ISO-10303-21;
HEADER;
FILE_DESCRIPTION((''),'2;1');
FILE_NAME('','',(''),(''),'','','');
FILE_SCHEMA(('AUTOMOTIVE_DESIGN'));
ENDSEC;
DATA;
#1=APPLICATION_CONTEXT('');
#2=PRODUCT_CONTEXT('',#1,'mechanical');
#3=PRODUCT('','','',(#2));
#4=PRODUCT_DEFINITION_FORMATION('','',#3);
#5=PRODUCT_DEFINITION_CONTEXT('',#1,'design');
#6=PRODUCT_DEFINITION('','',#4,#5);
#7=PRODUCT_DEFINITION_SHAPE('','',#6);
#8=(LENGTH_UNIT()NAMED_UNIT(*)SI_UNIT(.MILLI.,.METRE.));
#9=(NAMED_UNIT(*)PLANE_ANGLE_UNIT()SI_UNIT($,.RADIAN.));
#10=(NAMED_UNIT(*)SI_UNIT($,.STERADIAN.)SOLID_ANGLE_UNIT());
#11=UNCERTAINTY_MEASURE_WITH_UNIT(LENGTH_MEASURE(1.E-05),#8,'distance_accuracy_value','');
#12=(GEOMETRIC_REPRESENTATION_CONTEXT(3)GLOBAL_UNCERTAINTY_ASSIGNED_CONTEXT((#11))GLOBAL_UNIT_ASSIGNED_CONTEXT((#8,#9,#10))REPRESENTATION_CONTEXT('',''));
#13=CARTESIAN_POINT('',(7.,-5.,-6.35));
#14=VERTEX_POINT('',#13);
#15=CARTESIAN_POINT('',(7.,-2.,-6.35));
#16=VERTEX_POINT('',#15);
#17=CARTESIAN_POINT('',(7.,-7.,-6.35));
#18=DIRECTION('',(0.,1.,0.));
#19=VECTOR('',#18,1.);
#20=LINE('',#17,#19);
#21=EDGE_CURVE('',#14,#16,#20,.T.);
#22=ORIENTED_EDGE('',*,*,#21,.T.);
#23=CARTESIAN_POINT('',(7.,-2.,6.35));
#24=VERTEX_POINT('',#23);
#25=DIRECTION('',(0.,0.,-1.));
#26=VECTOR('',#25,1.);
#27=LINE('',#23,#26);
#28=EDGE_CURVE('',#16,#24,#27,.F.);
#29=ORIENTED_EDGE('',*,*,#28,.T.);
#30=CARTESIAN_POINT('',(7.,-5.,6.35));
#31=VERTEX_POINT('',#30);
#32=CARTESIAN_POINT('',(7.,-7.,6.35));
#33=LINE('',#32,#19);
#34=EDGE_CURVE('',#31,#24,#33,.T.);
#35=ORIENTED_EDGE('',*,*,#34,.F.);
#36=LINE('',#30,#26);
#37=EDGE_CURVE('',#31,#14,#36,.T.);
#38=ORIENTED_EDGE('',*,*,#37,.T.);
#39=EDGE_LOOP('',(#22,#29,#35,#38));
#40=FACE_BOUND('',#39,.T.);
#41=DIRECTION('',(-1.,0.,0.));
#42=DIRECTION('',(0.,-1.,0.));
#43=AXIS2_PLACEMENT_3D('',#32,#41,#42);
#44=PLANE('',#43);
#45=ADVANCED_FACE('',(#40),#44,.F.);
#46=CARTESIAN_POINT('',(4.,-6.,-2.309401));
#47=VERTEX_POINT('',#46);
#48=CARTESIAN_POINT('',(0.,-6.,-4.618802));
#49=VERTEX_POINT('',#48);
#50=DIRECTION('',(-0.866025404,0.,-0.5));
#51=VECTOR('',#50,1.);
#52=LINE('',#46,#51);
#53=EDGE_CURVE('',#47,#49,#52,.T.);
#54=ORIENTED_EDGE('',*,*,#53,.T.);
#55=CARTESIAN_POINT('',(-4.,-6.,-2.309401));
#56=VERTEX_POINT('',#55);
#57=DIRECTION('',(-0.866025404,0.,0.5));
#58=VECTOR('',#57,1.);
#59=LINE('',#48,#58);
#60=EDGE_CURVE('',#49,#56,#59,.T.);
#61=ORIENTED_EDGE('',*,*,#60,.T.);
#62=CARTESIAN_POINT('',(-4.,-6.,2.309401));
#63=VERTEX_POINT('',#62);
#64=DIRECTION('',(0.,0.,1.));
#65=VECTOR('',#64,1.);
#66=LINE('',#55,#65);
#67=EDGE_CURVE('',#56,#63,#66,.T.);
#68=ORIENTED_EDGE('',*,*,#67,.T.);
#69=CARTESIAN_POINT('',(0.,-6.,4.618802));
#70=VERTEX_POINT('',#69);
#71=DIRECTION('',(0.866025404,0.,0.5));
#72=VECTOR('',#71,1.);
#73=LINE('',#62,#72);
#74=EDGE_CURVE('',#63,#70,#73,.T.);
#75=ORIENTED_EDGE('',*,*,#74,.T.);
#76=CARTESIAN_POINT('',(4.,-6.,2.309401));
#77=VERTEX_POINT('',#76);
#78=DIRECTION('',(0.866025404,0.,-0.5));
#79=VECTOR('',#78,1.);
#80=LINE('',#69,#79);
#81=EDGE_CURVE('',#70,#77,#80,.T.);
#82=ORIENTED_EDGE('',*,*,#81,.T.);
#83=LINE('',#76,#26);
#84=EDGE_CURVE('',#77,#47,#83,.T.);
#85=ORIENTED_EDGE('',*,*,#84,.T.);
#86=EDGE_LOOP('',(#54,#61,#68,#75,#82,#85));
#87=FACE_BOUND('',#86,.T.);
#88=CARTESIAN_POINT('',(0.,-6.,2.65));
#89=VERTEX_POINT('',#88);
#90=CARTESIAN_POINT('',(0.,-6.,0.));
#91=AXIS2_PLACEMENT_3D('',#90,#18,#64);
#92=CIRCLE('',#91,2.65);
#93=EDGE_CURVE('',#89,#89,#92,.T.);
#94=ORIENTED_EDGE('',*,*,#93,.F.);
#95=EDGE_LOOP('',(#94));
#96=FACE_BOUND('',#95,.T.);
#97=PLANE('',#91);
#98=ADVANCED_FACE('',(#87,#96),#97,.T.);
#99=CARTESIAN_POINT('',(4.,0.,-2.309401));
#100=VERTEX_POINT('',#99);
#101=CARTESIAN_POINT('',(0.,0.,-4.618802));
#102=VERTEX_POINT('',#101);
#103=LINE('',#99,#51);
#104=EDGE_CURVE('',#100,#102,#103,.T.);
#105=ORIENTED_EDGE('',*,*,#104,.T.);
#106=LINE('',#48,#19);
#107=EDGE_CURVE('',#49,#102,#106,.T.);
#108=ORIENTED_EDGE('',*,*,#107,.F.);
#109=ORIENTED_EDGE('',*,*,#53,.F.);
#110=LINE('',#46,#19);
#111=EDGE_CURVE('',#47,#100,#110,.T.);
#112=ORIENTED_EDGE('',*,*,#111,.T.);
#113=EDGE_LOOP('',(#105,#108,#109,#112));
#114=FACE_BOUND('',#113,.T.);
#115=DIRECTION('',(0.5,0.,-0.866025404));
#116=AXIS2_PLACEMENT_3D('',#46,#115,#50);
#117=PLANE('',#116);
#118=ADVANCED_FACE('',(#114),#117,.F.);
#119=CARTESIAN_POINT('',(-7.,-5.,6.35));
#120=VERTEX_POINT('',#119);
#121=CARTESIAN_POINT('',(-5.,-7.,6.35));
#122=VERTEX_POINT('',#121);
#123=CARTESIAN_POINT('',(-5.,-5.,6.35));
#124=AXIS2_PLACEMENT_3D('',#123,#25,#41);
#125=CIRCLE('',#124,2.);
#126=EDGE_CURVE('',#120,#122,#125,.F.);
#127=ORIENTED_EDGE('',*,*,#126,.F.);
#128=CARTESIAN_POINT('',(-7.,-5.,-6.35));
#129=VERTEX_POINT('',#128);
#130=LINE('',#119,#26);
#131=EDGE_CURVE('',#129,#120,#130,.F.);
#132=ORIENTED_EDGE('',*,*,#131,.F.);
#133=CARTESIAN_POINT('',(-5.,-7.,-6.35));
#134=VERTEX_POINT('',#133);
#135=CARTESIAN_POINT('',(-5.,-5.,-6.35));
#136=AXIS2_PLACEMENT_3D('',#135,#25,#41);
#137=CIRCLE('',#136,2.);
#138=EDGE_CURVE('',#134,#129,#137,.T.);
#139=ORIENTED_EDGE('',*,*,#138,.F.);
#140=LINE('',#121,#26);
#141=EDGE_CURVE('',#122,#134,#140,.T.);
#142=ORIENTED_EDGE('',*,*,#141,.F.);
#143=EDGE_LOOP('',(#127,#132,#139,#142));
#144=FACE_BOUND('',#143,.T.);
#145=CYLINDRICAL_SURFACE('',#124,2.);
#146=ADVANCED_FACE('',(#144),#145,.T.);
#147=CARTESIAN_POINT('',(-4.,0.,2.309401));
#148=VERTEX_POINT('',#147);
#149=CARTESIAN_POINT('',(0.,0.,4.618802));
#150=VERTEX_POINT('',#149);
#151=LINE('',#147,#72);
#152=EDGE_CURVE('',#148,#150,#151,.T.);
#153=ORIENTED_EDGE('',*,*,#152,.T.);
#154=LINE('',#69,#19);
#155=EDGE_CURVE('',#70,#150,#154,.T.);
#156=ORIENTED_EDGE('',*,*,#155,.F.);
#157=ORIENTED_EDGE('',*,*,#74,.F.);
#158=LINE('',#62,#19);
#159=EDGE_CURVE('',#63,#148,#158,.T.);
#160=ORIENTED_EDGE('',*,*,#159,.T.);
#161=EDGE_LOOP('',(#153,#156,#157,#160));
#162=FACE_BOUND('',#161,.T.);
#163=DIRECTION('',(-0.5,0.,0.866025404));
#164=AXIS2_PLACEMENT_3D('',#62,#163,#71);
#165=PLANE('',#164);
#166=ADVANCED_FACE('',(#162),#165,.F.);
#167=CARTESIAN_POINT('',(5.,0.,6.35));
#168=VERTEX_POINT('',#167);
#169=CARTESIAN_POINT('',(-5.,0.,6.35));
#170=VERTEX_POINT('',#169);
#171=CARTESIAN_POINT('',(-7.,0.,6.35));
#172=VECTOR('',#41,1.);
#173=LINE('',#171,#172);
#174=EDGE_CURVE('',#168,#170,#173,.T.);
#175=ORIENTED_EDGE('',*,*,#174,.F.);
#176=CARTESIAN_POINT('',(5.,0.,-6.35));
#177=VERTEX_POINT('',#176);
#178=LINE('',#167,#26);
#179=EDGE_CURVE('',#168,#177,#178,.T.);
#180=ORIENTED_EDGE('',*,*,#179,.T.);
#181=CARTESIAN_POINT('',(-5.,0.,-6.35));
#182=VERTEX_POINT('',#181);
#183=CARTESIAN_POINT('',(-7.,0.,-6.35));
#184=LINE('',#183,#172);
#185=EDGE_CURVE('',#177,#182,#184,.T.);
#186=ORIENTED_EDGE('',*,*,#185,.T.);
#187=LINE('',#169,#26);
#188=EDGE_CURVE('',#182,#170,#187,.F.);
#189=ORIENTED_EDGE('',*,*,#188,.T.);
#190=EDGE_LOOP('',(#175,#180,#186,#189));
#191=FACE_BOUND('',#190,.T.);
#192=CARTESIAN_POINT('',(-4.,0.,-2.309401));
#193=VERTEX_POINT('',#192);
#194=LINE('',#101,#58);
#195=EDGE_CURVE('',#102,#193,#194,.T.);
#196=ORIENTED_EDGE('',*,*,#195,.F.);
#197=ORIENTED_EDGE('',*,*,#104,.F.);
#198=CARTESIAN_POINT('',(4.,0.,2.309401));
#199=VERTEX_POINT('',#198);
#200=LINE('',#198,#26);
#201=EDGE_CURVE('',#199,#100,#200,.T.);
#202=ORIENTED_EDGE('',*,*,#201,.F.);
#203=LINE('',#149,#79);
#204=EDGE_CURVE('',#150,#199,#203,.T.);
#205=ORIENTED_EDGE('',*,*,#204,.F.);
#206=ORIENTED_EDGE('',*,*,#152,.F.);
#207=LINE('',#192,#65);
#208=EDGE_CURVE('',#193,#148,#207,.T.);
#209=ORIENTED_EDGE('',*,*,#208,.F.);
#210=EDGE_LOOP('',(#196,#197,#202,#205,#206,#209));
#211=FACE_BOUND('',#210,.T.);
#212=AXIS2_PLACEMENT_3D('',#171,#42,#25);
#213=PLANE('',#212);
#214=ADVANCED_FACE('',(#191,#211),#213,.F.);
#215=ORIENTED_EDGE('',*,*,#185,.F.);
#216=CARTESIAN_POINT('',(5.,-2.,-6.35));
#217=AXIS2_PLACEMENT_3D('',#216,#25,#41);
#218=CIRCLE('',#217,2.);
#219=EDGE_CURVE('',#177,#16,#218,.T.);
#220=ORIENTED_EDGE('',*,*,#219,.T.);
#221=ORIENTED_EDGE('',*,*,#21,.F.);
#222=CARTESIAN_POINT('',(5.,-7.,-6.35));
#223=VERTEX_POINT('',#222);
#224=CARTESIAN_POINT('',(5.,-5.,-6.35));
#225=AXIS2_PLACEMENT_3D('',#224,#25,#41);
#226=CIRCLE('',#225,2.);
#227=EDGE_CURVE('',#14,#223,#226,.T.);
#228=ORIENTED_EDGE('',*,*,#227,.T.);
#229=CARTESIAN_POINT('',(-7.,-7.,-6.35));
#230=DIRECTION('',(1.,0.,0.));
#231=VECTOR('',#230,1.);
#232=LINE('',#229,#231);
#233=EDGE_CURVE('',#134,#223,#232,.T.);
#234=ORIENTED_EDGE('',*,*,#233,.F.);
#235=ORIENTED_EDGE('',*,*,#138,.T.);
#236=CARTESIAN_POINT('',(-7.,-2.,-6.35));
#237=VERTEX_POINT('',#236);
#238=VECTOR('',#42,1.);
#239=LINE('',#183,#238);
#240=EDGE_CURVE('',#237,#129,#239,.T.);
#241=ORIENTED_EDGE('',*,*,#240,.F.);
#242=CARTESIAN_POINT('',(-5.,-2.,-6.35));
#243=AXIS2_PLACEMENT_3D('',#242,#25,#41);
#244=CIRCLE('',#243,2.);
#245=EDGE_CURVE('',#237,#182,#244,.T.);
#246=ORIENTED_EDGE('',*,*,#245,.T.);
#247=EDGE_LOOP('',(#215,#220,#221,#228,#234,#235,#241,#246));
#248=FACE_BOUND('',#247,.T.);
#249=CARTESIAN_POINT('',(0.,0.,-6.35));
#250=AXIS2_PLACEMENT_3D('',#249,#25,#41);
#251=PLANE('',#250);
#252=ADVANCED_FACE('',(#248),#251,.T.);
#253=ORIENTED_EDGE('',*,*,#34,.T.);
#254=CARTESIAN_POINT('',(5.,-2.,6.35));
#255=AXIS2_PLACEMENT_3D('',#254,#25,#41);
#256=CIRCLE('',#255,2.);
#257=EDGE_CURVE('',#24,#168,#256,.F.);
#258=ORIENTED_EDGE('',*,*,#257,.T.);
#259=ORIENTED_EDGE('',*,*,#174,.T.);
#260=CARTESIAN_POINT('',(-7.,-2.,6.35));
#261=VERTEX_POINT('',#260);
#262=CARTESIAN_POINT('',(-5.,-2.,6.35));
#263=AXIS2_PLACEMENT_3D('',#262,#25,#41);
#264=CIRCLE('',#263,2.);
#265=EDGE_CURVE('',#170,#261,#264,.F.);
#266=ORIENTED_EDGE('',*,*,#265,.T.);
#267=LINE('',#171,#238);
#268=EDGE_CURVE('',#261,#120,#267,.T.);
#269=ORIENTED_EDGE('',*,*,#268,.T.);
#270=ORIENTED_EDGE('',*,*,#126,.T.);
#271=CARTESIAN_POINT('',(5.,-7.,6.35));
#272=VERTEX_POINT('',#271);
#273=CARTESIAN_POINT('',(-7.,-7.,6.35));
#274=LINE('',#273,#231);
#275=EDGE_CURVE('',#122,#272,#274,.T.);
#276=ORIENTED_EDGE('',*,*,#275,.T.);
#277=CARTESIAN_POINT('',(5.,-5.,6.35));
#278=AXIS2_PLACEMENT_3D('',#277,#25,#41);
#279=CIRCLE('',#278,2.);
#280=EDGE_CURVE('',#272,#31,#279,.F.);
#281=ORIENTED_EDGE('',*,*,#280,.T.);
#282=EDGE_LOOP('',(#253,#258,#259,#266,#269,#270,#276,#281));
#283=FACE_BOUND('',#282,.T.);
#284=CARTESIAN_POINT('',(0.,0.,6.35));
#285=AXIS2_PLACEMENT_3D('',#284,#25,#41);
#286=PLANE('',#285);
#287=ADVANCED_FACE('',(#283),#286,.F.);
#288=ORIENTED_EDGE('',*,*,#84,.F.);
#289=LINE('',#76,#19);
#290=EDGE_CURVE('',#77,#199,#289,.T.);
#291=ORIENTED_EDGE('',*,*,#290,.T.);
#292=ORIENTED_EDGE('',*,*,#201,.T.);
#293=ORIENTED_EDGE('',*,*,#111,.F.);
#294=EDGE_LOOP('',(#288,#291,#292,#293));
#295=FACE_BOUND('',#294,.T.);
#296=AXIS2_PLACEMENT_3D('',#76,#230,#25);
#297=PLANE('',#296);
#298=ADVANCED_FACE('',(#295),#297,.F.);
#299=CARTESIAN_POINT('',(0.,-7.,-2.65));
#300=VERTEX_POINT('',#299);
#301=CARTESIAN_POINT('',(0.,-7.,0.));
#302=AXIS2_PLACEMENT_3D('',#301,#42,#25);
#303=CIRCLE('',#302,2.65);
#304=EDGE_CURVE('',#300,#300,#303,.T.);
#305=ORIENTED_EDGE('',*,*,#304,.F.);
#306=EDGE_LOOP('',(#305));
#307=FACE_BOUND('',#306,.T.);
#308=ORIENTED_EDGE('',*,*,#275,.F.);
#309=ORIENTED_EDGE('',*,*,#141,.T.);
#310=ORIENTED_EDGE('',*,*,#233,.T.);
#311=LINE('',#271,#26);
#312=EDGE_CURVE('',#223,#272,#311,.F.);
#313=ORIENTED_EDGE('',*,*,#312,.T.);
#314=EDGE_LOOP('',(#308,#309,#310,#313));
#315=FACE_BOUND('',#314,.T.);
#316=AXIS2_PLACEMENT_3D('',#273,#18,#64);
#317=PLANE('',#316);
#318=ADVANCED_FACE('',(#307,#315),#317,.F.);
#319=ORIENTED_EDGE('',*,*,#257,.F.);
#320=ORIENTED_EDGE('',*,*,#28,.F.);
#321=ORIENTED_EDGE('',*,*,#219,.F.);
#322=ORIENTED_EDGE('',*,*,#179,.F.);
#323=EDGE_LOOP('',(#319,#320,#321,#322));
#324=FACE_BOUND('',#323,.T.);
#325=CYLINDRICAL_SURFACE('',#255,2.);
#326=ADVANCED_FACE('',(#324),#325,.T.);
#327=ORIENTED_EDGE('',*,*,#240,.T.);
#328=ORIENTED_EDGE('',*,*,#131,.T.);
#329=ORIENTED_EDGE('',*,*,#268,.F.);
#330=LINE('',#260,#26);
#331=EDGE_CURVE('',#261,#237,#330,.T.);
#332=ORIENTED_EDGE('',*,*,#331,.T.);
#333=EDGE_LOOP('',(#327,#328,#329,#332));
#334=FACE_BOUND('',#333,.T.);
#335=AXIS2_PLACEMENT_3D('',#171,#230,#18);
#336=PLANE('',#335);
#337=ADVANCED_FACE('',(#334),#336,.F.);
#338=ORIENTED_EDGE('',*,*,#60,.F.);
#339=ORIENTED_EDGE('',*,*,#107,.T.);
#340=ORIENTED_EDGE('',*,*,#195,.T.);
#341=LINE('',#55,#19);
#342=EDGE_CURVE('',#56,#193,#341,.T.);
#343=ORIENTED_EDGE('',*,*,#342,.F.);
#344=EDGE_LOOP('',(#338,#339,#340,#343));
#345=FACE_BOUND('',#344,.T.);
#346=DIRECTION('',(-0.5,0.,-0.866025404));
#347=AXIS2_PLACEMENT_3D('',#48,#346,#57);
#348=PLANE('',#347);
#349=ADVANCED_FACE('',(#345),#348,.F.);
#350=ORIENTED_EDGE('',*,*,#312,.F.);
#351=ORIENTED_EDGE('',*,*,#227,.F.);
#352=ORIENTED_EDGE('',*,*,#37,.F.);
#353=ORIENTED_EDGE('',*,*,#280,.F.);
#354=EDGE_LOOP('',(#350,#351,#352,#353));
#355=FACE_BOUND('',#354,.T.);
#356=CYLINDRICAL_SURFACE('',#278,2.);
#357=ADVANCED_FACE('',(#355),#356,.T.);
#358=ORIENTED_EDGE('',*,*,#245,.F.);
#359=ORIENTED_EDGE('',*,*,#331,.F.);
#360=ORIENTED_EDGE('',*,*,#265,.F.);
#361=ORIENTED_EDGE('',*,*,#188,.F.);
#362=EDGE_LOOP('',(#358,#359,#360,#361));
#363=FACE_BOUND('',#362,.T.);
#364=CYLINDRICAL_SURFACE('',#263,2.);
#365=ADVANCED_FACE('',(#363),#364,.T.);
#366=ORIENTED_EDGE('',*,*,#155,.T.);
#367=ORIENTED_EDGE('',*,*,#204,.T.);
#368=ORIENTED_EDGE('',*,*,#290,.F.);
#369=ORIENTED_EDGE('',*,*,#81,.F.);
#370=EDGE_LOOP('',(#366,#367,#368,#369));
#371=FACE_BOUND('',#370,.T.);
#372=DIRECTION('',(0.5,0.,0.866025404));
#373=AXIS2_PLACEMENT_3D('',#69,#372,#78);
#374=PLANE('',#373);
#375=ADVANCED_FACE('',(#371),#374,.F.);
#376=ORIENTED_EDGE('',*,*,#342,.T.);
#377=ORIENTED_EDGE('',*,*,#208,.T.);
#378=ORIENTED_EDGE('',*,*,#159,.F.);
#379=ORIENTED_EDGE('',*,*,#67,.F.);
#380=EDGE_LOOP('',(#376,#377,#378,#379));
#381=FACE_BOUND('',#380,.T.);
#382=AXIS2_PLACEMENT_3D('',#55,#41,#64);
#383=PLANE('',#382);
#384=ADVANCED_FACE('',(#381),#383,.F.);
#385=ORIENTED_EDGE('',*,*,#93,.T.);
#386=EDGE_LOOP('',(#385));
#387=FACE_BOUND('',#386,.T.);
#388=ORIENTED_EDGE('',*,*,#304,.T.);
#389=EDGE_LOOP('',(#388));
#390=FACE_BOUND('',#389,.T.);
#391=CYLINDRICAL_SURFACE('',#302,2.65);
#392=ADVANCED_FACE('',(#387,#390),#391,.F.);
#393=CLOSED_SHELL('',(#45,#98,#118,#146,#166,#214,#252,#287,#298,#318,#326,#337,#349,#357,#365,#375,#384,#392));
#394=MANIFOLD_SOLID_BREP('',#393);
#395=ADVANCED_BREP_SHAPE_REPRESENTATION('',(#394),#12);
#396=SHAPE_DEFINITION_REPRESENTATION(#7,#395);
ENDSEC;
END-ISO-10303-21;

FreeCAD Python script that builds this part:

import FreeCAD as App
import Part
import Sketcher

V = App.Vector
Q = App.Units.Quantity


def edges_at(feature, points):
    """Names of the edges that pass closest to the given points."""
    edges = feature.Shape.Edges
    near = lambda p: min(range(len(edges)), key=lambda i: edges[i].distToShape(Part.Vertex(*p))[0])
    return sorted({f"Edge{near(p) + 1}" for p in points})


def add_polygon(sketch, points):
    """Adds a closed chain of lines whose ends are joined by coincident constraints."""
    first, n = sketch.GeometryCount, len(points)
    for a, b in zip(points, points[1:] + points[:1]):
        sketch.addGeometry(Part.LineSegment(App.Vector(*a, 0), App.Vector(*b, 0)), False)
    for i in range(n):
        sketch.addConstraint(Sketcher.Constraint("Coincident", first + i, 2, first + (i + 1) % n, 1))

doc = App.newDocument("Part")
body = doc.addObject("PartDesign::Body", "Body")

# Sketch on XY plane
sketch1 = body.newObject("Sketcher::SketchObject", "Sketch")
sketch1.AttachmentSupport = (doc.getObject("XY_Plane"), [""])
sketch1.MapMode = "FlatFace"
add_polygon(sketch1, [(-7, 0), (-7, -7), (7, -7), (7, 0)])  # lines 0-3
sketch1.addConstraint(Sketcher.Constraint("Vertical", 0))
sketch1.addConstraint(Sketcher.Constraint("Horizontal", 1))
sketch1.addConstraint(Sketcher.Constraint("Vertical", 2))
sketch1.addConstraint(Sketcher.Constraint("Horizontal", 3))
sketch1.addConstraint(Sketcher.Constraint("Symmetric", 2, 2, 3, 2, -1, 1))
sketch1.addConstraint(Sketcher.Constraint("DistanceX", 1, 1, 1, 2, 14.0))
sketch1.addConstraint(Sketcher.Constraint("DistanceY", 0, 2, 0, 1, 7.0))
pad1 = body.newObject("PartDesign::Pad", "Pad")
pad1.Profile = sketch1
pad1.Length = 12.7
pad1.Midplane = True

# Sketch on XZ plane
sketch2 = body.newObject("Sketcher::SketchObject", "Sketch001")
sketch2.AttachmentSupport = (doc.getObject("XZ_Plane"), [""])
sketch2.MapMode = "FlatFace"
add_polygon(sketch2, [(0, 4.618802), (4, 2.309401), (4, -2.309401), (0, -4.618802), (-4, -2.309401), (-4, 2.309401)])  # lines 0-5
sketch2.addConstraint(Sketcher.Constraint("Vertical", 1))
sketch2.addConstraint(Sketcher.Constraint("Vertical", 4))
sketch2.addConstraint(Sketcher.Constraint("Symmetric", 0, 2, 3, 2, -1, 1))
sketch2.addConstraint(Sketcher.Constraint("Symmetric", 2, 2, 5, 2, -1, 1))
sketch2.addConstraint(Sketcher.Constraint("PointOnObject", 2, 2, -2))
sketch2.addConstraint(Sketcher.Constraint("Parallel", 2, 5))
sketch2.addConstraint(Sketcher.Constraint("Horizontal", 1, 2, 3, 2))
sketch2.addConstraint(Sketcher.Constraint("Angle", 0, Q("-30 deg")))
sketch2.addConstraint(Sketcher.Constraint("DistanceX", -1, 1, 0, 2, 4.0))
sketch2.addConstraint(Sketcher.Constraint("DistanceY", -1, 1, 0, 2, 2.309401))
pocket1 = body.newObject("PartDesign::Pocket", "Pocket")
pocket1.Profile = sketch2
pocket1.Length = 6
pocket1.Reversed = True
doc.recompute()

fillet = body.newObject("PartDesign::Fillet", "Fillet")
fillet.Base = (pocket1, edges_at(pocket1, [
    (7, -7, 0),
    (-7, -7, 0),
    (-7, 0, 0),
    (7, 0, 0),
]))
fillet.Radius = 2

# Sketch on XZ plane
sketch3 = body.newObject("Sketcher::SketchObject", "Sketch002")
sketch3.AttachmentSupport = (doc.getObject("XZ_Plane"), [""])
sketch3.MapMode = "FlatFace"
sketch3.AttachmentOffset = App.Placement(V(0, 0, 7), App.Rotation())
sketch3.addGeometry(Part.Circle(V(0, 0, 0), V(0, 0, 1), 2.65), False)
sketch3.addConstraint(Sketcher.Constraint("Coincident", 0, 3, -1, 1))
sketch3.addConstraint(Sketcher.Constraint("Diameter", 0, 5.3))
doc.recompute()
hole = body.newObject("PartDesign::Hole", "Hole")
hole.Profile = sketch3
hole.ThreadType = "None"
hole.Diameter = 5.3
hole.DepthType = "ThroughAll"

doc.recompute()
